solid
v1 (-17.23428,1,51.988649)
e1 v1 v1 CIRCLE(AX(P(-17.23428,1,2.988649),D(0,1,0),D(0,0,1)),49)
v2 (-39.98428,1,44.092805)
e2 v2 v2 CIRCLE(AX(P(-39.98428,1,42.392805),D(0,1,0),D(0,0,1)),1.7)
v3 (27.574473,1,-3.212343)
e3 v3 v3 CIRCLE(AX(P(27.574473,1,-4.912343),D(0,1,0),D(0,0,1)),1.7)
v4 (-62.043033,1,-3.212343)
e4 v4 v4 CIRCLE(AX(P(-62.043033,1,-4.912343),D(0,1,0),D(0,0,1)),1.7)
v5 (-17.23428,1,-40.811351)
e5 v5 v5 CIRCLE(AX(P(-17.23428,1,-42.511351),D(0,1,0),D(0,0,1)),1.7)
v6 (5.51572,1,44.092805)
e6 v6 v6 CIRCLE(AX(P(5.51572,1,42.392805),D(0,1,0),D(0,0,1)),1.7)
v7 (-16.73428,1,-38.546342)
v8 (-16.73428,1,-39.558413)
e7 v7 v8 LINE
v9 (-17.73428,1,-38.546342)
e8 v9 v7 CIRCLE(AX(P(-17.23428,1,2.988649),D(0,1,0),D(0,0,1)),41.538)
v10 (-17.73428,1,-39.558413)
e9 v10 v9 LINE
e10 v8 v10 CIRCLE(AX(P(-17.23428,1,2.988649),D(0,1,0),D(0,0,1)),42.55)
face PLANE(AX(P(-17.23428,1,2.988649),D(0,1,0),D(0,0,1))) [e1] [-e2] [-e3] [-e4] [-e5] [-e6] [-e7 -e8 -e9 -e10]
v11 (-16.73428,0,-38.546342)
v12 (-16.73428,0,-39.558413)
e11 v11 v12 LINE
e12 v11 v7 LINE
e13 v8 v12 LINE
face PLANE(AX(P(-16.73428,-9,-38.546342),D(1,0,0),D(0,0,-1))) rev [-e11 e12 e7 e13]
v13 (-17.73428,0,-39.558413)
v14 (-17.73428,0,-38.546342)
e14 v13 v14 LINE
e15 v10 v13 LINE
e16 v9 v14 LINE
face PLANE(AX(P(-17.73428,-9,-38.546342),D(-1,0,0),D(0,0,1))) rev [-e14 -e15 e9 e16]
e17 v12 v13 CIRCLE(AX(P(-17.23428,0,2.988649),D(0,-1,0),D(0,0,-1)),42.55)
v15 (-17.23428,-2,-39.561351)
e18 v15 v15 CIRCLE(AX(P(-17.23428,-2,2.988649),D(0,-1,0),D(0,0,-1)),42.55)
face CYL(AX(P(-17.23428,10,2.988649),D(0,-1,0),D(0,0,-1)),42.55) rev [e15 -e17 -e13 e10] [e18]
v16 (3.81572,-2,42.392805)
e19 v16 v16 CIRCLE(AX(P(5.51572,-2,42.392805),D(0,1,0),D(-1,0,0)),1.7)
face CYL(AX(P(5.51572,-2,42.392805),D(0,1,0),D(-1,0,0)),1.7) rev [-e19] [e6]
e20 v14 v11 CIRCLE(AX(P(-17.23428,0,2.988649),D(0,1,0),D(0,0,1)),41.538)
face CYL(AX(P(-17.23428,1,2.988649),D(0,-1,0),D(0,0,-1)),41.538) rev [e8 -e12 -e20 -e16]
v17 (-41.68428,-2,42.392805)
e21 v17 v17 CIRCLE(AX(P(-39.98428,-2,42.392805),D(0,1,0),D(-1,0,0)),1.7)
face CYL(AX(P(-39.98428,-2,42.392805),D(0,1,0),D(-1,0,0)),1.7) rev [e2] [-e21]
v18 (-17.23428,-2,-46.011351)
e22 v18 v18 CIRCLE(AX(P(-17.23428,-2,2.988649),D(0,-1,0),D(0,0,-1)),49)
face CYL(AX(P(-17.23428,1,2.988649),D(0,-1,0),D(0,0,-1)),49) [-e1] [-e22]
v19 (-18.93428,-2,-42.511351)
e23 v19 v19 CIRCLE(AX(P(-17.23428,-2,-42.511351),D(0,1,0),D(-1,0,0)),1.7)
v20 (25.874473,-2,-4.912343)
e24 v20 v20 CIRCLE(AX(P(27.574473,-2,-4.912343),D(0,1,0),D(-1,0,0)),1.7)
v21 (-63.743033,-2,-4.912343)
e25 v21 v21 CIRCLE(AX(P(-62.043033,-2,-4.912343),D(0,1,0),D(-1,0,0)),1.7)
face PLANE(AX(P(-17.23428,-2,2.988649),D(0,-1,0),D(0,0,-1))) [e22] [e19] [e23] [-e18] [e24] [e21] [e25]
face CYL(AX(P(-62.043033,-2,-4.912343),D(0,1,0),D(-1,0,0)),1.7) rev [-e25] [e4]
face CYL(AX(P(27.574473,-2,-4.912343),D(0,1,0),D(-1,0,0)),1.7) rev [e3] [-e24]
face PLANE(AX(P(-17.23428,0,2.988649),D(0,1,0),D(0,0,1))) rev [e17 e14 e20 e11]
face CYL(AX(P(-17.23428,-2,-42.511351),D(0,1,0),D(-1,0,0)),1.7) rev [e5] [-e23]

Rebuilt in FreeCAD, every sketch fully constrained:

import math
import FreeCAD as App
import Part
import Sketcher

doc = App.newDocument("Part")
body = doc.addObject("PartDesign::Body", "Body")

# Sketch on XZ plane
sketch1 = body.newObject("Sketcher::SketchObject", "Sketch")
sketch1.AttachmentSupport = (doc.getObject("XZ_Plane"), [""])
sketch1.MapMode = "FlatFace"
sketch1.addGeometry(Part.Circle(App.Vector(-17, 3, 0), App.Vector(0, 0, 1), 49), False)
sketch1.addGeometry(Part.Circle(App.Vector(-17, 3, 0), App.Vector(0, 0, 1), 42), False)
sketch1.addConstraint(Sketcher.Constraint("Coincident", 1, 3, 0, 3))
sketch1.addConstraint(Sketcher.Constraint("Diameter", 0, 98.0))
sketch1.addConstraint(Sketcher.Constraint("Diameter", 1, 83.076))
sketch1.addConstraint(Sketcher.Constraint("DistanceX", 0, 3, -1, 1, 17.23428))
sketch1.addConstraint(Sketcher.Constraint("DistanceY", -1, 1, 0, 3, 2.988649))
pad1 = body.newObject("PartDesign::Pad", "Pad")
pad1.Profile = sketch1
pad1.Length = 1
pad1.Reversed = True

# Sketch on XZ plane
sketch2 = body.newObject("Sketcher::SketchObject", "Sketch001")
sketch2.AttachmentSupport = (doc.getObject("XZ_Plane"), [""])
sketch2.MapMode = "FlatFace"
sketch2.AttachmentOffset = App.Placement(App.Vector(0, 0, 9), App.Rotation())
sketch2.addGeometry(Part.LineSegment(App.Vector(-16.7, -38.5, 0), App.Vector(-16.7, -39.5, 0)), False)
sketch2.addGeometry(Part.ArcOfCircle(Part.Circle(App.Vector(-17.2, 3, 0), App.Vector(0, 0, 1), 42.5), math.radians(-90.67), math.radians(-89.33)), False)
sketch2.addGeometry(Part.LineSegment(App.Vector(-17.7, -39.5, 0), App.Vector(-17.7, -38.5, 0)), False)
sketch2.addGeometry(Part.ArcOfCircle(Part.Circle(App.Vector(-17.2, 3, 0), App.Vector(0, 0, 1), 41.5), math.radians(-90.69), math.radians(-89.31)), False)
sketch2.addConstraint(Sketcher.Constraint("Coincident", 0, 2, 1, 2))
sketch2.addConstraint(Sketcher.Constraint("Coincident", 1, 1, 2, 1))
sketch2.addConstraint(Sketcher.Constraint("Coincident", 2, 2, 3, 1))
sketch2.addConstraint(Sketcher.Constraint("Coincident", 3, 2, 0, 1))
sketch2.addConstraint(Sketcher.Constraint("Vertical", 0))
sketch2.addConstraint(Sketcher.Constraint("Vertical", 2))
sketch2.addConstraint(Sketcher.Constraint("Coincident", 3, 3, 1, 3))
sketch2.addConstraint(Sketcher.Constraint("Horizontal", 0, 2, 1, 1))
sketch2.addConstraint(Sketcher.Constraint("DistanceX", 1, 1, 0, 2, 1.0))
sketch2.addConstraint(Sketcher.Constraint("Radius", 1, 42.537994))
sketch2.addConstraint(Sketcher.Constraint("Radius", 3, 41.537996))
sketch2.addConstraint(Sketcher.Constraint("DistanceX", 1, 3, -1, 1, 17.23428))
sketch2.addConstraint(Sketcher.Constraint("DistanceY", 2, 2, -1, 1, 38.546342))
pocket1 = body.newObject("PartDesign::Pocket", "Pocket")
pocket1.Profile = sketch2
pocket1.Length = 10

# Sketch on XZ plane
sketch3 = body.newObject("Sketcher::SketchObject", "Sketch002")
sketch3.AttachmentSupport = (doc.getObject("XZ_Plane"), [""])
sketch3.MapMode = "FlatFace"
sketch3.addGeometry(Part.LineSegment(App.Vector(-17.7, -38.5, 0), App.Vector(-17.7, -39.6, 0)), False)
sketch3.addGeometry(Part.ArcOfCircle(Part.Circle(App.Vector(-17.2, 3, 0), App.Vector(0, 0, 1), 42.5), math.radians(-90.67), math.radians(-89.33)), False)
sketch3.addGeometry(Part.LineSegment(App.Vector(-16.7, -39.6, 0), App.Vector(-16.7, -38.5, 0)), False)
sketch3.addGeometry(Part.ArcOfCircle(Part.Circle(App.Vector(-17.2, 3, 0), App.Vector(0, 0, 1), 41.5), math.radians(-90.69), math.radians(-89.31)), False)
sketch3.addConstraint(Sketcher.Constraint("Coincident", 0, 2, 1, 1))
sketch3.addConstraint(Sketcher.Constraint("Coincident", 1, 2, 2, 1))
sketch3.addConstraint(Sketcher.Constraint("Coincident", 2, 2, 3, 2))
sketch3.addConstraint(Sketcher.Constraint("Coincident", 3, 1, 0, 1))
sketch3.addConstraint(Sketcher.Constraint("Vertical", 0))
sketch3.addConstraint(Sketcher.Constraint("Vertical", 2))
sketch3.addConstraint(Sketcher.Constraint("Coincident", 3, 3, 1, 3))
sketch3.addConstraint(Sketcher.Constraint("Horizontal", 0, 2, 1, 2))
sketch3.addConstraint(Sketcher.Constraint("DistanceX", 0, 2, 1, 2, 1.0))
sketch3.addConstraint(Sketcher.Constraint("Radius", 1, 42.549996))
sketch3.addConstraint(Sketcher.Constraint("Radius", 3, 41.537996))
sketch3.addConstraint(Sketcher.Constraint("DistanceX", 1, 3, -1, 1, 17.23428))
sketch3.addConstraint(Sketcher.Constraint("DistanceY", 2, 2, -1, 1, 38.546342))
pocket2 = body.newObject("PartDesign::Pocket", "Pocket001")
pocket2.Profile = sketch3
pocket2.Length = 10

# Sketch on XZ plane
sketch4 = body.newObject("Sketcher::SketchObject", "Sketch003")
sketch4.AttachmentSupport = (doc.getObject("XZ_Plane"), [""])
sketch4.MapMode = "FlatFace"
sketch4.AttachmentOffset = App.Placement(App.Vector(0, 0, 2), App.Rotation())
sketch4.addGeometry(Part.Circle(App.Vector(-17, 3, 0), App.Vector(0, 0, 1), 49), False)
sketch4.addGeometry(Part.Circle(App.Vector(-17, 3, 0), App.Vector(0, 0, 1), 43), False)
sketch4.addConstraint(Sketcher.Constraint("Coincident", 1, 3, 0, 3))
sketch4.addConstraint(Sketcher.Constraint("Diameter", 0, 98.0))
sketch4.addConstraint(Sketcher.Constraint("Diameter", 1, 85.1))
sketch4.addConstraint(Sketcher.Constraint("DistanceX", 0, 3, -1, 1, 17.23428))
sketch4.addConstraint(Sketcher.Constraint("DistanceY", -1, 1, 0, 3, 2.988649))
pad2 = body.newObject("PartDesign::Pad", "Pad001")
pad2.Profile = sketch4
pad2.Length = 2
pad2.Reversed = True

# Sketch on XZ plane
sketch5 = body.newObject("Sketcher::SketchObject", "Sketch004")
sketch5.AttachmentSupport = (doc.getObject("XZ_Plane"), [""])
sketch5.MapMode = "FlatFace"
sketch5.AttachmentOffset = App.Placement(App.Vector(0, 0, -4), App.Rotation())
sketch5.addGeometry(Part.Circle(App.Vector(-17.2, -42.5, 0), App.Vector(0, 0, 1), 1.7), False)
sketch5.addGeometry(Part.Circle(App.Vector(-62, -4.9, 0), App.Vector(0, 0, 1), 1.7), False)
sketch5.addGeometry(Part.Circle(App.Vector(-40, 42.4, 0), App.Vector(0, 0, 1), 1.7), False)
sketch5.addGeometry(Part.Circle(App.Vector(5.5, 42.4, 0), App.Vector(0, 0, 1), 1.7), False)
sketch5.addGeometry(Part.Circle(App.Vector(27.6, -4.9, 0), App.Vector(0, 0, 1), 1.7), False)
sketch5.addConstraint(Sketcher.Constraint("Equal", 0, 1))
sketch5.addConstraint(Sketcher.Constraint("Equal", 1, 2))
sketch5.addConstraint(Sketcher.Constraint("Equal", 2, 3))
sketch5.addConstraint(Sketcher.Constraint("Equal", 3, 4))
sketch5.addConstraint(Sketcher.Constraint("Horizontal", 2, 3, 3, 3))
sketch5.addConstraint(Sketcher.Constraint("Horizontal", 1, 3, 4, 3))
sketch5.addConstraint(Sketcher.Constraint("Diameter", 0, 3.4))
sketch5.addConstraint(Sketcher.Constraint("DistanceX", 2, 3, 3, 3, 45.5))
sketch5.addConstraint(Sketcher.Constraint("DistanceX", 2, 3, 0, 3, 22.75))
sketch5.addConstraint(Sketcher.Constraint("DistanceX", 0, 3, -1, 1, 17.23428))
sketch5.addConstraint(Sketcher.Constraint("DistanceY", 0, 3, -1, 1, 42.511351))
sketch5.addConstraint(Sketcher.Constraint("DistanceX", 1, 3, -1, 1, 62.043033))
sketch5.addConstraint(Sketcher.Constraint("DistanceY", 1, 3, -1, 1, 4.912343))
sketch5.addConstraint(Sketcher.Constraint("DistanceY", -1, 1, 2, 3, 42.392805))
sketch5.addConstraint(Sketcher.Constraint("DistanceX", -1, 1, 4, 3, 27.574473))
pocket3 = body.newObject("PartDesign::Pocket", "Pocket002")
pocket3.Profile = sketch5
pocket3.Type = "ThroughAll"
pocket3.Reversed = True

doc.recompute()
